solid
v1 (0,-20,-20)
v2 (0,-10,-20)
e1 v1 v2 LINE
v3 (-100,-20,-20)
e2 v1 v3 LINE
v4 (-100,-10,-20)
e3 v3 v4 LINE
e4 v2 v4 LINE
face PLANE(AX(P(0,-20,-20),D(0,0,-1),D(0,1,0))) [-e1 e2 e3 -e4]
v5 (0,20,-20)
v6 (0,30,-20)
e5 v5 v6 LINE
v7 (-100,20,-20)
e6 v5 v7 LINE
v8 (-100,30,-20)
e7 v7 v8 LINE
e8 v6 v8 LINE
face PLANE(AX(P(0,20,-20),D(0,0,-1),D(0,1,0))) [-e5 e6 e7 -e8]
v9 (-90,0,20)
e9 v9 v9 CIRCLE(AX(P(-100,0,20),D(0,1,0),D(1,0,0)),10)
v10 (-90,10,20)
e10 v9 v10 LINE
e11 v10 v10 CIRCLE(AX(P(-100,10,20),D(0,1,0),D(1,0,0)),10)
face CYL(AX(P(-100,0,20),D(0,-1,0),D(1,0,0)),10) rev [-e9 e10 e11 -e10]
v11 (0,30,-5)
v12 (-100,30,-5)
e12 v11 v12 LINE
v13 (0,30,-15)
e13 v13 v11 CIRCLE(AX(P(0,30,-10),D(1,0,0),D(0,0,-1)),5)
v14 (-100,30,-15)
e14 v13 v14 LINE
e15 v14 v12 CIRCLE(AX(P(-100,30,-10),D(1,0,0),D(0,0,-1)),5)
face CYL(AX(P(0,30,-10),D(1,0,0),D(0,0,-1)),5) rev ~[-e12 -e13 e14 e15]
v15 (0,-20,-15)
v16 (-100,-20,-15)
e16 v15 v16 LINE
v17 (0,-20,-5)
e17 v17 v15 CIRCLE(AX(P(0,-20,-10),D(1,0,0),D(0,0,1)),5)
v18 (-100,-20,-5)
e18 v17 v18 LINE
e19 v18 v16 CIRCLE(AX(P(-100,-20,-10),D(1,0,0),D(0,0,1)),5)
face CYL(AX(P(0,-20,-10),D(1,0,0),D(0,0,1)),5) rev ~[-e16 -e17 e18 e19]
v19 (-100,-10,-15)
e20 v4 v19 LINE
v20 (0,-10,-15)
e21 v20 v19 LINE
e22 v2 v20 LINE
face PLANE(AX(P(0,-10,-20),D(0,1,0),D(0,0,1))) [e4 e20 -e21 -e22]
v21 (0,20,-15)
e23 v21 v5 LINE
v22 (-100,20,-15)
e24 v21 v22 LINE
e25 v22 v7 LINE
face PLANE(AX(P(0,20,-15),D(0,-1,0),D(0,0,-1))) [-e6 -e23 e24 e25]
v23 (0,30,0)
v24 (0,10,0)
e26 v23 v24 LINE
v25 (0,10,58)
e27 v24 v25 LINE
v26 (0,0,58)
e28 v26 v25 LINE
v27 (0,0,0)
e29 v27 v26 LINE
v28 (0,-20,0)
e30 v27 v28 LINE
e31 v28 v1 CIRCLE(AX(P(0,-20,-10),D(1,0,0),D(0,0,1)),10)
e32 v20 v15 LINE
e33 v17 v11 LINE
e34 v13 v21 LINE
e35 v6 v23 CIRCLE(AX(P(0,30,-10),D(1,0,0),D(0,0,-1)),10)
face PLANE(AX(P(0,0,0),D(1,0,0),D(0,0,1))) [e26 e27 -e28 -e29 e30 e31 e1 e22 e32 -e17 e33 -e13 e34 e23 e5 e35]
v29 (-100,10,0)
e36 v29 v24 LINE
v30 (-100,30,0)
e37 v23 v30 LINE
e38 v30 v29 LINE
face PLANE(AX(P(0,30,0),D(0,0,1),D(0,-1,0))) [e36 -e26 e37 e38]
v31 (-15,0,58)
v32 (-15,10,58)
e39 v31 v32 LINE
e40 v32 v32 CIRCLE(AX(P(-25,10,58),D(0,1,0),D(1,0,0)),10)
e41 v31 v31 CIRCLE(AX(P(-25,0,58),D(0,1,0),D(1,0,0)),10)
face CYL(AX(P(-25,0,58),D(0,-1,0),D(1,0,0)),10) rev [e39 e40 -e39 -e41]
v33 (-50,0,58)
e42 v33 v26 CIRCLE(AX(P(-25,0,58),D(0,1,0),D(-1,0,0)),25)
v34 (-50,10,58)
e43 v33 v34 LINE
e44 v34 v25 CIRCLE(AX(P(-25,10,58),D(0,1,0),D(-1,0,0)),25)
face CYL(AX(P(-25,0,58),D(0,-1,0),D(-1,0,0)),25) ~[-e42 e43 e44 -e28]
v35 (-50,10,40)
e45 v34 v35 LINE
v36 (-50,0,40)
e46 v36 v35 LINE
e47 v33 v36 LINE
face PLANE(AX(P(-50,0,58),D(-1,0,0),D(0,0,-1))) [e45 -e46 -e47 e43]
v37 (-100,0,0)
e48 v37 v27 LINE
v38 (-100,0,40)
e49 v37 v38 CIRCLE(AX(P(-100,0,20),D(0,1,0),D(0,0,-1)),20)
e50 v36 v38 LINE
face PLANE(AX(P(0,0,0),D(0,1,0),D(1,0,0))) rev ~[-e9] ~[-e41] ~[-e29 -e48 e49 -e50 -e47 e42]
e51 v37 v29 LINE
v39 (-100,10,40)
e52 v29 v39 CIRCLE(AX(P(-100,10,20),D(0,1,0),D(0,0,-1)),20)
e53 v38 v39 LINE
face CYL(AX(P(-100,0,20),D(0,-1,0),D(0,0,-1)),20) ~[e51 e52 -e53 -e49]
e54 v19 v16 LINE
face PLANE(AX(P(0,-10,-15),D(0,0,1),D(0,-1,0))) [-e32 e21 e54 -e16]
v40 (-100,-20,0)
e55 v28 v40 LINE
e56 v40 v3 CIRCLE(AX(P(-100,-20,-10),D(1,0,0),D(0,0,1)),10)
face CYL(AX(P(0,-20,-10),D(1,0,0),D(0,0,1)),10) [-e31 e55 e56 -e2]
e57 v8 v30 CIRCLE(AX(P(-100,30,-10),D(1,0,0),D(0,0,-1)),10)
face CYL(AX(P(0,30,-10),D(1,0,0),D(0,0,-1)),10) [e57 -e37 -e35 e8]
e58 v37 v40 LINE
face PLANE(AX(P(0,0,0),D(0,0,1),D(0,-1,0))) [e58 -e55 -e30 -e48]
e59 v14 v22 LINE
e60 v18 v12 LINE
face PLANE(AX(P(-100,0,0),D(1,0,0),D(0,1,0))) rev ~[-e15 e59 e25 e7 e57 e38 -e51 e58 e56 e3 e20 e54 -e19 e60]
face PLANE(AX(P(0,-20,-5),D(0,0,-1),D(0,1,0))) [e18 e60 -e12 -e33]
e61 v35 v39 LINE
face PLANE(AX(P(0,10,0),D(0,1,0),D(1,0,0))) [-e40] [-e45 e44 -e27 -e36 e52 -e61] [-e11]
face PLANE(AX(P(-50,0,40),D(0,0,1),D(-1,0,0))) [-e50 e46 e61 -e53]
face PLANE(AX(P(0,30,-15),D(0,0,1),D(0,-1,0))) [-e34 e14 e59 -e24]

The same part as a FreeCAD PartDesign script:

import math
import FreeCAD as App
import Part
import Sketcher
Q = App.Units.Quantity

doc = App.newDocument("Part")
body = doc.addObject("PartDesign::Body", "Body")

sketch1 = body.newObject("Sketcher::SketchObject", "Sketch")
sketch1.AttachmentSupport = (doc.getObject("XZ_Plane"), [""])
sketch1.MapMode = "FlatFace"
sketch1.addGeometry([
    Part.LineSegment(App.Vector(0, 58, 0), App.Vector(0, 0, 0)),
    Part.LineSegment(App.Vector(0, 0, 0), App.Vector(-100, 0, 0)),
    Part.ArcOfCircle(Part.Circle(App.Vector(-100, 20, 0), App.Vector(0, 0, 1), 20), math.radians(90), math.radians(270)),
    Part.LineSegment(App.Vector(-100, 40, 0), App.Vector(-50, 40, 0)),
    Part.LineSegment(App.Vector(-50, 40, 0), App.Vector(-50, 58, 0)),
    Part.ArcOfCircle(Part.Circle(App.Vector(-25, 58, 0), App.Vector(0, 0, 1), 25), math.radians(0), math.radians(180)),
    Part.Circle(App.Vector(-25, 58, 0), App.Vector(0, 0, 1), 10),
    Part.Circle(App.Vector(-100, 20, 0), App.Vector(0, 0, 1), 10),
], False)
sketch1.addConstraint([
    Sketcher.Constraint("Coincident", 0, 2, 1, 1),
    Sketcher.Constraint("Tangent", 1, 2, 2, 2),
    Sketcher.Constraint("Tangent", 2, 1, 3, 1),
    Sketcher.Constraint("Coincident", 3, 2, 4, 1),
    Sketcher.Constraint("Tangent", 4, 2, 5, 2),
    Sketcher.Constraint("Tangent", 5, 1, 0, 1),
    Sketcher.Constraint("Vertical", 0),
    Sketcher.Constraint("Horizontal", 1),
    Sketcher.Constraint("Horizontal", 3),
    Sketcher.Constraint("Vertical", 4),
    Sketcher.Constraint("Coincident", 0, 2, -1, 1),
    Sketcher.Constraint("Coincident", 6, 3, 5, 3),
    Sketcher.Constraint("Coincident", 7, 3, 2, 3),
    Sketcher.Constraint("Equal", 6, 7),
    Sketcher.Constraint("Diameter", 6, Q("20 mm")),
    Sketcher.Constraint("Radius", 2, Q("20 mm")),
    Sketcher.Constraint("Radius", 5, Q("25 mm")),
    Sketcher.Constraint("DistanceX", 3, 1, 3, 2, Q("50 mm")),
    Sketcher.Constraint("DistanceY", 0, 2, 0, 1, Q("58 mm")),
])
pad1 = body.newObject("PartDesign::Pad", "Pad")
pad1.Profile = sketch1
pad1.Length = 10
pad1.Reversed = True

sketch2 = body.newObject("Sketcher::SketchObject", "Sketch001")
sketch2.AttachmentSupport = (doc.getObject("YZ_Plane"), [""])
sketch2.MapMode = "FlatFace"
sketch2.addGeometry([
    Part.ArcOfCircle(Part.Circle(App.Vector(30, -10, 0), App.Vector(0, 0, 1), 10), math.radians(-90), math.radians(90)),
    Part.LineSegment(App.Vector(30, 0, 0), App.Vector(-20, 0, 0)),
    Part.ArcOfCircle(Part.Circle(App.Vector(-20, -10, 0), App.Vector(0, 0, 1), 10), math.radians(90), math.radians(270)),
    Part.LineSegment(App.Vector(-20, -20, 0), App.Vector(-10, -20, 0)),
    Part.LineSegment(App.Vector(-10, -20, 0), App.Vector(-10, -15, 0)),
    Part.LineSegment(App.Vector(-10, -15, 0), App.Vector(-20, -15, 0)),
    Part.ArcOfCircle(Part.Circle(App.Vector(-20, -10, 0), App.Vector(0, 0, 1), 5), math.radians(90), math.radians(270)),
    Part.LineSegment(App.Vector(-20, -5, 0), App.Vector(30, -5, 0)),
    Part.ArcOfCircle(Part.Circle(App.Vector(30, -10, 0), App.Vector(0, 0, 1), 5), math.radians(-90), math.radians(90)),
    Part.LineSegment(App.Vector(30, -15, 0), App.Vector(20, -15, 0)),
    Part.LineSegment(App.Vector(20, -15, 0), App.Vector(20, -20, 0)),
    Part.LineSegment(App.Vector(20, -20, 0), App.Vector(30, -20, 0)),
], False)
sketch2.addConstraint([
    Sketcher.Constraint("Tangent", 0, 2, 1, 1),
    Sketcher.Constraint("Tangent", 1, 2, 2, 1),
    Sketcher.Constraint("Tangent", 2, 2, 3, 1),
    Sketcher.Constraint("Coincident", 3, 2, 4, 1),
    Sketcher.Constraint("Coincident", 4, 2, 5, 1),
    Sketcher.Constraint("Tangent", 5, 2, 6, 2),
    Sketcher.Constraint("Tangent", 6, 1, 7, 1),
    Sketcher.Constraint("Tangent", 7, 2, 8, 2),
    Sketcher.Constraint("Tangent", 8, 1, 9, 1),
    Sketcher.Constraint("Coincident", 9, 2, 10, 1),
    Sketcher.Constraint("Coincident", 10, 2, 11, 1),
    Sketcher.Constraint("Tangent", 11, 2, 0, 1),
    Sketcher.Constraint("Horizontal", 1),
    Sketcher.Constraint("Horizontal", 3),
    Sketcher.Constraint("Vertical", 4),
    Sketcher.Constraint("Horizontal", 5),
    Sketcher.Constraint("Horizontal", 7),
    Sketcher.Constraint("Horizontal", 9),
    Sketcher.Constraint("Vertical", 10),
    Sketcher.Constraint("Horizontal", 11),
    Sketcher.Constraint("Coincident", 6, 3, 2, 3),
    Sketcher.Constraint("Coincident", 8, 3, 0, 3),
    Sketcher.Constraint("Equal", 0, 2),
    Sketcher.Constraint("PointOnObject", 0, 2, -1),
    Sketcher.Constraint("Equal", 5, 9),
    Sketcher.Constraint("Radius", 0, Q("10 mm")),
    Sketcher.Constraint("Radius", 6, Q("5 mm")),
    Sketcher.Constraint("DistanceX", 1, 2, 1, 1, Q("50 mm")),
    Sketcher.Constraint("DistanceX", 3, 1, 3, 2, Q("10 mm")),
    Sketcher.Constraint("DistanceX", 2, 3, -1, 1, Q("20 mm")),
])
pad2 = body.newObject("PartDesign::Pad", "Pad001")
pad2.Profile = sketch2
pad2.Length = 100
pad2.Reversed = True

doc.recompute()
